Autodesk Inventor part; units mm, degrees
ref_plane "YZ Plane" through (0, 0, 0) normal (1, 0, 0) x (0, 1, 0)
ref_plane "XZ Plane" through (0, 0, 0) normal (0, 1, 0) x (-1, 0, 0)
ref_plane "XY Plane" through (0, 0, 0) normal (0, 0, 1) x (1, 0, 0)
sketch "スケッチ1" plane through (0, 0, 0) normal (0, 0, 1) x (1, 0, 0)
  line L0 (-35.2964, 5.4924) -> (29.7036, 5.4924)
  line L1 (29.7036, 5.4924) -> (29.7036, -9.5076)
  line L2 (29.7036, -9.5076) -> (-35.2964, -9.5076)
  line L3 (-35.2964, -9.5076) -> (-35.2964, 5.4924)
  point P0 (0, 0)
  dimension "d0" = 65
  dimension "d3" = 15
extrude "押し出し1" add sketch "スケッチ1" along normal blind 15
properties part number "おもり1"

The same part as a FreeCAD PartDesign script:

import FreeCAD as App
import Part
import Sketcher
Q = App.Units.Quantity


def add_polygon(sketch, points):
    """Adds a closed chain of lines whose ends are joined by coincident constraints."""
    first, n = sketch.GeometryCount, len(points)
    for a, b in zip(points, points[1:] + points[:1]):
        sketch.addGeometry(Part.LineSegment(App.Vector(*a, 0), App.Vector(*b, 0)), False)
    for i in range(n):
        sketch.addConstraint(Sketcher.Constraint("Coincident", first + i, 2, first + (i + 1) % n, 1))

doc = App.newDocument("Part")
body = doc.addObject("PartDesign::Body", "Body")

# Sketch on XY plane
sketch1 = doc.addObject("Sketcher::SketchObject", "Sketch")
body.addObject(sketch1)
sketch1.AttachmentSupport = (doc.XY_Plane, [""])
sketch1.MapMode = "FlatFace"
add_polygon(sketch1, [(30, 5), (-35, 5), (-35, -10), (30, -10)])  # lines 0-3
sketch1.addConstraint([
    Sketcher.Constraint("Horizontal", 0),
    Sketcher.Constraint("Vertical", 1),
    Sketcher.Constraint("Horizontal", 2),
    Sketcher.Constraint("Vertical", 3),
    Sketcher.Constraint("DistanceX", 0, 2, 0, 1, Q("65 mm")),
    Sketcher.Constraint("DistanceY", 1, 2, 1, 1, Q("15 mm")),
    Sketcher.Constraint("DistanceX", 0, 2, -1, 1, Q("35.2964 mm")),
    Sketcher.Constraint("DistanceY", -1, 1, 0, 2, Q("5.4924 mm")),
])
pad1 = doc.addObject("PartDesign::Pad", "Pad")
body.addObject(pad1)
pad1.Profile = sketch1
pad1.Length = 15

doc.recompute()
